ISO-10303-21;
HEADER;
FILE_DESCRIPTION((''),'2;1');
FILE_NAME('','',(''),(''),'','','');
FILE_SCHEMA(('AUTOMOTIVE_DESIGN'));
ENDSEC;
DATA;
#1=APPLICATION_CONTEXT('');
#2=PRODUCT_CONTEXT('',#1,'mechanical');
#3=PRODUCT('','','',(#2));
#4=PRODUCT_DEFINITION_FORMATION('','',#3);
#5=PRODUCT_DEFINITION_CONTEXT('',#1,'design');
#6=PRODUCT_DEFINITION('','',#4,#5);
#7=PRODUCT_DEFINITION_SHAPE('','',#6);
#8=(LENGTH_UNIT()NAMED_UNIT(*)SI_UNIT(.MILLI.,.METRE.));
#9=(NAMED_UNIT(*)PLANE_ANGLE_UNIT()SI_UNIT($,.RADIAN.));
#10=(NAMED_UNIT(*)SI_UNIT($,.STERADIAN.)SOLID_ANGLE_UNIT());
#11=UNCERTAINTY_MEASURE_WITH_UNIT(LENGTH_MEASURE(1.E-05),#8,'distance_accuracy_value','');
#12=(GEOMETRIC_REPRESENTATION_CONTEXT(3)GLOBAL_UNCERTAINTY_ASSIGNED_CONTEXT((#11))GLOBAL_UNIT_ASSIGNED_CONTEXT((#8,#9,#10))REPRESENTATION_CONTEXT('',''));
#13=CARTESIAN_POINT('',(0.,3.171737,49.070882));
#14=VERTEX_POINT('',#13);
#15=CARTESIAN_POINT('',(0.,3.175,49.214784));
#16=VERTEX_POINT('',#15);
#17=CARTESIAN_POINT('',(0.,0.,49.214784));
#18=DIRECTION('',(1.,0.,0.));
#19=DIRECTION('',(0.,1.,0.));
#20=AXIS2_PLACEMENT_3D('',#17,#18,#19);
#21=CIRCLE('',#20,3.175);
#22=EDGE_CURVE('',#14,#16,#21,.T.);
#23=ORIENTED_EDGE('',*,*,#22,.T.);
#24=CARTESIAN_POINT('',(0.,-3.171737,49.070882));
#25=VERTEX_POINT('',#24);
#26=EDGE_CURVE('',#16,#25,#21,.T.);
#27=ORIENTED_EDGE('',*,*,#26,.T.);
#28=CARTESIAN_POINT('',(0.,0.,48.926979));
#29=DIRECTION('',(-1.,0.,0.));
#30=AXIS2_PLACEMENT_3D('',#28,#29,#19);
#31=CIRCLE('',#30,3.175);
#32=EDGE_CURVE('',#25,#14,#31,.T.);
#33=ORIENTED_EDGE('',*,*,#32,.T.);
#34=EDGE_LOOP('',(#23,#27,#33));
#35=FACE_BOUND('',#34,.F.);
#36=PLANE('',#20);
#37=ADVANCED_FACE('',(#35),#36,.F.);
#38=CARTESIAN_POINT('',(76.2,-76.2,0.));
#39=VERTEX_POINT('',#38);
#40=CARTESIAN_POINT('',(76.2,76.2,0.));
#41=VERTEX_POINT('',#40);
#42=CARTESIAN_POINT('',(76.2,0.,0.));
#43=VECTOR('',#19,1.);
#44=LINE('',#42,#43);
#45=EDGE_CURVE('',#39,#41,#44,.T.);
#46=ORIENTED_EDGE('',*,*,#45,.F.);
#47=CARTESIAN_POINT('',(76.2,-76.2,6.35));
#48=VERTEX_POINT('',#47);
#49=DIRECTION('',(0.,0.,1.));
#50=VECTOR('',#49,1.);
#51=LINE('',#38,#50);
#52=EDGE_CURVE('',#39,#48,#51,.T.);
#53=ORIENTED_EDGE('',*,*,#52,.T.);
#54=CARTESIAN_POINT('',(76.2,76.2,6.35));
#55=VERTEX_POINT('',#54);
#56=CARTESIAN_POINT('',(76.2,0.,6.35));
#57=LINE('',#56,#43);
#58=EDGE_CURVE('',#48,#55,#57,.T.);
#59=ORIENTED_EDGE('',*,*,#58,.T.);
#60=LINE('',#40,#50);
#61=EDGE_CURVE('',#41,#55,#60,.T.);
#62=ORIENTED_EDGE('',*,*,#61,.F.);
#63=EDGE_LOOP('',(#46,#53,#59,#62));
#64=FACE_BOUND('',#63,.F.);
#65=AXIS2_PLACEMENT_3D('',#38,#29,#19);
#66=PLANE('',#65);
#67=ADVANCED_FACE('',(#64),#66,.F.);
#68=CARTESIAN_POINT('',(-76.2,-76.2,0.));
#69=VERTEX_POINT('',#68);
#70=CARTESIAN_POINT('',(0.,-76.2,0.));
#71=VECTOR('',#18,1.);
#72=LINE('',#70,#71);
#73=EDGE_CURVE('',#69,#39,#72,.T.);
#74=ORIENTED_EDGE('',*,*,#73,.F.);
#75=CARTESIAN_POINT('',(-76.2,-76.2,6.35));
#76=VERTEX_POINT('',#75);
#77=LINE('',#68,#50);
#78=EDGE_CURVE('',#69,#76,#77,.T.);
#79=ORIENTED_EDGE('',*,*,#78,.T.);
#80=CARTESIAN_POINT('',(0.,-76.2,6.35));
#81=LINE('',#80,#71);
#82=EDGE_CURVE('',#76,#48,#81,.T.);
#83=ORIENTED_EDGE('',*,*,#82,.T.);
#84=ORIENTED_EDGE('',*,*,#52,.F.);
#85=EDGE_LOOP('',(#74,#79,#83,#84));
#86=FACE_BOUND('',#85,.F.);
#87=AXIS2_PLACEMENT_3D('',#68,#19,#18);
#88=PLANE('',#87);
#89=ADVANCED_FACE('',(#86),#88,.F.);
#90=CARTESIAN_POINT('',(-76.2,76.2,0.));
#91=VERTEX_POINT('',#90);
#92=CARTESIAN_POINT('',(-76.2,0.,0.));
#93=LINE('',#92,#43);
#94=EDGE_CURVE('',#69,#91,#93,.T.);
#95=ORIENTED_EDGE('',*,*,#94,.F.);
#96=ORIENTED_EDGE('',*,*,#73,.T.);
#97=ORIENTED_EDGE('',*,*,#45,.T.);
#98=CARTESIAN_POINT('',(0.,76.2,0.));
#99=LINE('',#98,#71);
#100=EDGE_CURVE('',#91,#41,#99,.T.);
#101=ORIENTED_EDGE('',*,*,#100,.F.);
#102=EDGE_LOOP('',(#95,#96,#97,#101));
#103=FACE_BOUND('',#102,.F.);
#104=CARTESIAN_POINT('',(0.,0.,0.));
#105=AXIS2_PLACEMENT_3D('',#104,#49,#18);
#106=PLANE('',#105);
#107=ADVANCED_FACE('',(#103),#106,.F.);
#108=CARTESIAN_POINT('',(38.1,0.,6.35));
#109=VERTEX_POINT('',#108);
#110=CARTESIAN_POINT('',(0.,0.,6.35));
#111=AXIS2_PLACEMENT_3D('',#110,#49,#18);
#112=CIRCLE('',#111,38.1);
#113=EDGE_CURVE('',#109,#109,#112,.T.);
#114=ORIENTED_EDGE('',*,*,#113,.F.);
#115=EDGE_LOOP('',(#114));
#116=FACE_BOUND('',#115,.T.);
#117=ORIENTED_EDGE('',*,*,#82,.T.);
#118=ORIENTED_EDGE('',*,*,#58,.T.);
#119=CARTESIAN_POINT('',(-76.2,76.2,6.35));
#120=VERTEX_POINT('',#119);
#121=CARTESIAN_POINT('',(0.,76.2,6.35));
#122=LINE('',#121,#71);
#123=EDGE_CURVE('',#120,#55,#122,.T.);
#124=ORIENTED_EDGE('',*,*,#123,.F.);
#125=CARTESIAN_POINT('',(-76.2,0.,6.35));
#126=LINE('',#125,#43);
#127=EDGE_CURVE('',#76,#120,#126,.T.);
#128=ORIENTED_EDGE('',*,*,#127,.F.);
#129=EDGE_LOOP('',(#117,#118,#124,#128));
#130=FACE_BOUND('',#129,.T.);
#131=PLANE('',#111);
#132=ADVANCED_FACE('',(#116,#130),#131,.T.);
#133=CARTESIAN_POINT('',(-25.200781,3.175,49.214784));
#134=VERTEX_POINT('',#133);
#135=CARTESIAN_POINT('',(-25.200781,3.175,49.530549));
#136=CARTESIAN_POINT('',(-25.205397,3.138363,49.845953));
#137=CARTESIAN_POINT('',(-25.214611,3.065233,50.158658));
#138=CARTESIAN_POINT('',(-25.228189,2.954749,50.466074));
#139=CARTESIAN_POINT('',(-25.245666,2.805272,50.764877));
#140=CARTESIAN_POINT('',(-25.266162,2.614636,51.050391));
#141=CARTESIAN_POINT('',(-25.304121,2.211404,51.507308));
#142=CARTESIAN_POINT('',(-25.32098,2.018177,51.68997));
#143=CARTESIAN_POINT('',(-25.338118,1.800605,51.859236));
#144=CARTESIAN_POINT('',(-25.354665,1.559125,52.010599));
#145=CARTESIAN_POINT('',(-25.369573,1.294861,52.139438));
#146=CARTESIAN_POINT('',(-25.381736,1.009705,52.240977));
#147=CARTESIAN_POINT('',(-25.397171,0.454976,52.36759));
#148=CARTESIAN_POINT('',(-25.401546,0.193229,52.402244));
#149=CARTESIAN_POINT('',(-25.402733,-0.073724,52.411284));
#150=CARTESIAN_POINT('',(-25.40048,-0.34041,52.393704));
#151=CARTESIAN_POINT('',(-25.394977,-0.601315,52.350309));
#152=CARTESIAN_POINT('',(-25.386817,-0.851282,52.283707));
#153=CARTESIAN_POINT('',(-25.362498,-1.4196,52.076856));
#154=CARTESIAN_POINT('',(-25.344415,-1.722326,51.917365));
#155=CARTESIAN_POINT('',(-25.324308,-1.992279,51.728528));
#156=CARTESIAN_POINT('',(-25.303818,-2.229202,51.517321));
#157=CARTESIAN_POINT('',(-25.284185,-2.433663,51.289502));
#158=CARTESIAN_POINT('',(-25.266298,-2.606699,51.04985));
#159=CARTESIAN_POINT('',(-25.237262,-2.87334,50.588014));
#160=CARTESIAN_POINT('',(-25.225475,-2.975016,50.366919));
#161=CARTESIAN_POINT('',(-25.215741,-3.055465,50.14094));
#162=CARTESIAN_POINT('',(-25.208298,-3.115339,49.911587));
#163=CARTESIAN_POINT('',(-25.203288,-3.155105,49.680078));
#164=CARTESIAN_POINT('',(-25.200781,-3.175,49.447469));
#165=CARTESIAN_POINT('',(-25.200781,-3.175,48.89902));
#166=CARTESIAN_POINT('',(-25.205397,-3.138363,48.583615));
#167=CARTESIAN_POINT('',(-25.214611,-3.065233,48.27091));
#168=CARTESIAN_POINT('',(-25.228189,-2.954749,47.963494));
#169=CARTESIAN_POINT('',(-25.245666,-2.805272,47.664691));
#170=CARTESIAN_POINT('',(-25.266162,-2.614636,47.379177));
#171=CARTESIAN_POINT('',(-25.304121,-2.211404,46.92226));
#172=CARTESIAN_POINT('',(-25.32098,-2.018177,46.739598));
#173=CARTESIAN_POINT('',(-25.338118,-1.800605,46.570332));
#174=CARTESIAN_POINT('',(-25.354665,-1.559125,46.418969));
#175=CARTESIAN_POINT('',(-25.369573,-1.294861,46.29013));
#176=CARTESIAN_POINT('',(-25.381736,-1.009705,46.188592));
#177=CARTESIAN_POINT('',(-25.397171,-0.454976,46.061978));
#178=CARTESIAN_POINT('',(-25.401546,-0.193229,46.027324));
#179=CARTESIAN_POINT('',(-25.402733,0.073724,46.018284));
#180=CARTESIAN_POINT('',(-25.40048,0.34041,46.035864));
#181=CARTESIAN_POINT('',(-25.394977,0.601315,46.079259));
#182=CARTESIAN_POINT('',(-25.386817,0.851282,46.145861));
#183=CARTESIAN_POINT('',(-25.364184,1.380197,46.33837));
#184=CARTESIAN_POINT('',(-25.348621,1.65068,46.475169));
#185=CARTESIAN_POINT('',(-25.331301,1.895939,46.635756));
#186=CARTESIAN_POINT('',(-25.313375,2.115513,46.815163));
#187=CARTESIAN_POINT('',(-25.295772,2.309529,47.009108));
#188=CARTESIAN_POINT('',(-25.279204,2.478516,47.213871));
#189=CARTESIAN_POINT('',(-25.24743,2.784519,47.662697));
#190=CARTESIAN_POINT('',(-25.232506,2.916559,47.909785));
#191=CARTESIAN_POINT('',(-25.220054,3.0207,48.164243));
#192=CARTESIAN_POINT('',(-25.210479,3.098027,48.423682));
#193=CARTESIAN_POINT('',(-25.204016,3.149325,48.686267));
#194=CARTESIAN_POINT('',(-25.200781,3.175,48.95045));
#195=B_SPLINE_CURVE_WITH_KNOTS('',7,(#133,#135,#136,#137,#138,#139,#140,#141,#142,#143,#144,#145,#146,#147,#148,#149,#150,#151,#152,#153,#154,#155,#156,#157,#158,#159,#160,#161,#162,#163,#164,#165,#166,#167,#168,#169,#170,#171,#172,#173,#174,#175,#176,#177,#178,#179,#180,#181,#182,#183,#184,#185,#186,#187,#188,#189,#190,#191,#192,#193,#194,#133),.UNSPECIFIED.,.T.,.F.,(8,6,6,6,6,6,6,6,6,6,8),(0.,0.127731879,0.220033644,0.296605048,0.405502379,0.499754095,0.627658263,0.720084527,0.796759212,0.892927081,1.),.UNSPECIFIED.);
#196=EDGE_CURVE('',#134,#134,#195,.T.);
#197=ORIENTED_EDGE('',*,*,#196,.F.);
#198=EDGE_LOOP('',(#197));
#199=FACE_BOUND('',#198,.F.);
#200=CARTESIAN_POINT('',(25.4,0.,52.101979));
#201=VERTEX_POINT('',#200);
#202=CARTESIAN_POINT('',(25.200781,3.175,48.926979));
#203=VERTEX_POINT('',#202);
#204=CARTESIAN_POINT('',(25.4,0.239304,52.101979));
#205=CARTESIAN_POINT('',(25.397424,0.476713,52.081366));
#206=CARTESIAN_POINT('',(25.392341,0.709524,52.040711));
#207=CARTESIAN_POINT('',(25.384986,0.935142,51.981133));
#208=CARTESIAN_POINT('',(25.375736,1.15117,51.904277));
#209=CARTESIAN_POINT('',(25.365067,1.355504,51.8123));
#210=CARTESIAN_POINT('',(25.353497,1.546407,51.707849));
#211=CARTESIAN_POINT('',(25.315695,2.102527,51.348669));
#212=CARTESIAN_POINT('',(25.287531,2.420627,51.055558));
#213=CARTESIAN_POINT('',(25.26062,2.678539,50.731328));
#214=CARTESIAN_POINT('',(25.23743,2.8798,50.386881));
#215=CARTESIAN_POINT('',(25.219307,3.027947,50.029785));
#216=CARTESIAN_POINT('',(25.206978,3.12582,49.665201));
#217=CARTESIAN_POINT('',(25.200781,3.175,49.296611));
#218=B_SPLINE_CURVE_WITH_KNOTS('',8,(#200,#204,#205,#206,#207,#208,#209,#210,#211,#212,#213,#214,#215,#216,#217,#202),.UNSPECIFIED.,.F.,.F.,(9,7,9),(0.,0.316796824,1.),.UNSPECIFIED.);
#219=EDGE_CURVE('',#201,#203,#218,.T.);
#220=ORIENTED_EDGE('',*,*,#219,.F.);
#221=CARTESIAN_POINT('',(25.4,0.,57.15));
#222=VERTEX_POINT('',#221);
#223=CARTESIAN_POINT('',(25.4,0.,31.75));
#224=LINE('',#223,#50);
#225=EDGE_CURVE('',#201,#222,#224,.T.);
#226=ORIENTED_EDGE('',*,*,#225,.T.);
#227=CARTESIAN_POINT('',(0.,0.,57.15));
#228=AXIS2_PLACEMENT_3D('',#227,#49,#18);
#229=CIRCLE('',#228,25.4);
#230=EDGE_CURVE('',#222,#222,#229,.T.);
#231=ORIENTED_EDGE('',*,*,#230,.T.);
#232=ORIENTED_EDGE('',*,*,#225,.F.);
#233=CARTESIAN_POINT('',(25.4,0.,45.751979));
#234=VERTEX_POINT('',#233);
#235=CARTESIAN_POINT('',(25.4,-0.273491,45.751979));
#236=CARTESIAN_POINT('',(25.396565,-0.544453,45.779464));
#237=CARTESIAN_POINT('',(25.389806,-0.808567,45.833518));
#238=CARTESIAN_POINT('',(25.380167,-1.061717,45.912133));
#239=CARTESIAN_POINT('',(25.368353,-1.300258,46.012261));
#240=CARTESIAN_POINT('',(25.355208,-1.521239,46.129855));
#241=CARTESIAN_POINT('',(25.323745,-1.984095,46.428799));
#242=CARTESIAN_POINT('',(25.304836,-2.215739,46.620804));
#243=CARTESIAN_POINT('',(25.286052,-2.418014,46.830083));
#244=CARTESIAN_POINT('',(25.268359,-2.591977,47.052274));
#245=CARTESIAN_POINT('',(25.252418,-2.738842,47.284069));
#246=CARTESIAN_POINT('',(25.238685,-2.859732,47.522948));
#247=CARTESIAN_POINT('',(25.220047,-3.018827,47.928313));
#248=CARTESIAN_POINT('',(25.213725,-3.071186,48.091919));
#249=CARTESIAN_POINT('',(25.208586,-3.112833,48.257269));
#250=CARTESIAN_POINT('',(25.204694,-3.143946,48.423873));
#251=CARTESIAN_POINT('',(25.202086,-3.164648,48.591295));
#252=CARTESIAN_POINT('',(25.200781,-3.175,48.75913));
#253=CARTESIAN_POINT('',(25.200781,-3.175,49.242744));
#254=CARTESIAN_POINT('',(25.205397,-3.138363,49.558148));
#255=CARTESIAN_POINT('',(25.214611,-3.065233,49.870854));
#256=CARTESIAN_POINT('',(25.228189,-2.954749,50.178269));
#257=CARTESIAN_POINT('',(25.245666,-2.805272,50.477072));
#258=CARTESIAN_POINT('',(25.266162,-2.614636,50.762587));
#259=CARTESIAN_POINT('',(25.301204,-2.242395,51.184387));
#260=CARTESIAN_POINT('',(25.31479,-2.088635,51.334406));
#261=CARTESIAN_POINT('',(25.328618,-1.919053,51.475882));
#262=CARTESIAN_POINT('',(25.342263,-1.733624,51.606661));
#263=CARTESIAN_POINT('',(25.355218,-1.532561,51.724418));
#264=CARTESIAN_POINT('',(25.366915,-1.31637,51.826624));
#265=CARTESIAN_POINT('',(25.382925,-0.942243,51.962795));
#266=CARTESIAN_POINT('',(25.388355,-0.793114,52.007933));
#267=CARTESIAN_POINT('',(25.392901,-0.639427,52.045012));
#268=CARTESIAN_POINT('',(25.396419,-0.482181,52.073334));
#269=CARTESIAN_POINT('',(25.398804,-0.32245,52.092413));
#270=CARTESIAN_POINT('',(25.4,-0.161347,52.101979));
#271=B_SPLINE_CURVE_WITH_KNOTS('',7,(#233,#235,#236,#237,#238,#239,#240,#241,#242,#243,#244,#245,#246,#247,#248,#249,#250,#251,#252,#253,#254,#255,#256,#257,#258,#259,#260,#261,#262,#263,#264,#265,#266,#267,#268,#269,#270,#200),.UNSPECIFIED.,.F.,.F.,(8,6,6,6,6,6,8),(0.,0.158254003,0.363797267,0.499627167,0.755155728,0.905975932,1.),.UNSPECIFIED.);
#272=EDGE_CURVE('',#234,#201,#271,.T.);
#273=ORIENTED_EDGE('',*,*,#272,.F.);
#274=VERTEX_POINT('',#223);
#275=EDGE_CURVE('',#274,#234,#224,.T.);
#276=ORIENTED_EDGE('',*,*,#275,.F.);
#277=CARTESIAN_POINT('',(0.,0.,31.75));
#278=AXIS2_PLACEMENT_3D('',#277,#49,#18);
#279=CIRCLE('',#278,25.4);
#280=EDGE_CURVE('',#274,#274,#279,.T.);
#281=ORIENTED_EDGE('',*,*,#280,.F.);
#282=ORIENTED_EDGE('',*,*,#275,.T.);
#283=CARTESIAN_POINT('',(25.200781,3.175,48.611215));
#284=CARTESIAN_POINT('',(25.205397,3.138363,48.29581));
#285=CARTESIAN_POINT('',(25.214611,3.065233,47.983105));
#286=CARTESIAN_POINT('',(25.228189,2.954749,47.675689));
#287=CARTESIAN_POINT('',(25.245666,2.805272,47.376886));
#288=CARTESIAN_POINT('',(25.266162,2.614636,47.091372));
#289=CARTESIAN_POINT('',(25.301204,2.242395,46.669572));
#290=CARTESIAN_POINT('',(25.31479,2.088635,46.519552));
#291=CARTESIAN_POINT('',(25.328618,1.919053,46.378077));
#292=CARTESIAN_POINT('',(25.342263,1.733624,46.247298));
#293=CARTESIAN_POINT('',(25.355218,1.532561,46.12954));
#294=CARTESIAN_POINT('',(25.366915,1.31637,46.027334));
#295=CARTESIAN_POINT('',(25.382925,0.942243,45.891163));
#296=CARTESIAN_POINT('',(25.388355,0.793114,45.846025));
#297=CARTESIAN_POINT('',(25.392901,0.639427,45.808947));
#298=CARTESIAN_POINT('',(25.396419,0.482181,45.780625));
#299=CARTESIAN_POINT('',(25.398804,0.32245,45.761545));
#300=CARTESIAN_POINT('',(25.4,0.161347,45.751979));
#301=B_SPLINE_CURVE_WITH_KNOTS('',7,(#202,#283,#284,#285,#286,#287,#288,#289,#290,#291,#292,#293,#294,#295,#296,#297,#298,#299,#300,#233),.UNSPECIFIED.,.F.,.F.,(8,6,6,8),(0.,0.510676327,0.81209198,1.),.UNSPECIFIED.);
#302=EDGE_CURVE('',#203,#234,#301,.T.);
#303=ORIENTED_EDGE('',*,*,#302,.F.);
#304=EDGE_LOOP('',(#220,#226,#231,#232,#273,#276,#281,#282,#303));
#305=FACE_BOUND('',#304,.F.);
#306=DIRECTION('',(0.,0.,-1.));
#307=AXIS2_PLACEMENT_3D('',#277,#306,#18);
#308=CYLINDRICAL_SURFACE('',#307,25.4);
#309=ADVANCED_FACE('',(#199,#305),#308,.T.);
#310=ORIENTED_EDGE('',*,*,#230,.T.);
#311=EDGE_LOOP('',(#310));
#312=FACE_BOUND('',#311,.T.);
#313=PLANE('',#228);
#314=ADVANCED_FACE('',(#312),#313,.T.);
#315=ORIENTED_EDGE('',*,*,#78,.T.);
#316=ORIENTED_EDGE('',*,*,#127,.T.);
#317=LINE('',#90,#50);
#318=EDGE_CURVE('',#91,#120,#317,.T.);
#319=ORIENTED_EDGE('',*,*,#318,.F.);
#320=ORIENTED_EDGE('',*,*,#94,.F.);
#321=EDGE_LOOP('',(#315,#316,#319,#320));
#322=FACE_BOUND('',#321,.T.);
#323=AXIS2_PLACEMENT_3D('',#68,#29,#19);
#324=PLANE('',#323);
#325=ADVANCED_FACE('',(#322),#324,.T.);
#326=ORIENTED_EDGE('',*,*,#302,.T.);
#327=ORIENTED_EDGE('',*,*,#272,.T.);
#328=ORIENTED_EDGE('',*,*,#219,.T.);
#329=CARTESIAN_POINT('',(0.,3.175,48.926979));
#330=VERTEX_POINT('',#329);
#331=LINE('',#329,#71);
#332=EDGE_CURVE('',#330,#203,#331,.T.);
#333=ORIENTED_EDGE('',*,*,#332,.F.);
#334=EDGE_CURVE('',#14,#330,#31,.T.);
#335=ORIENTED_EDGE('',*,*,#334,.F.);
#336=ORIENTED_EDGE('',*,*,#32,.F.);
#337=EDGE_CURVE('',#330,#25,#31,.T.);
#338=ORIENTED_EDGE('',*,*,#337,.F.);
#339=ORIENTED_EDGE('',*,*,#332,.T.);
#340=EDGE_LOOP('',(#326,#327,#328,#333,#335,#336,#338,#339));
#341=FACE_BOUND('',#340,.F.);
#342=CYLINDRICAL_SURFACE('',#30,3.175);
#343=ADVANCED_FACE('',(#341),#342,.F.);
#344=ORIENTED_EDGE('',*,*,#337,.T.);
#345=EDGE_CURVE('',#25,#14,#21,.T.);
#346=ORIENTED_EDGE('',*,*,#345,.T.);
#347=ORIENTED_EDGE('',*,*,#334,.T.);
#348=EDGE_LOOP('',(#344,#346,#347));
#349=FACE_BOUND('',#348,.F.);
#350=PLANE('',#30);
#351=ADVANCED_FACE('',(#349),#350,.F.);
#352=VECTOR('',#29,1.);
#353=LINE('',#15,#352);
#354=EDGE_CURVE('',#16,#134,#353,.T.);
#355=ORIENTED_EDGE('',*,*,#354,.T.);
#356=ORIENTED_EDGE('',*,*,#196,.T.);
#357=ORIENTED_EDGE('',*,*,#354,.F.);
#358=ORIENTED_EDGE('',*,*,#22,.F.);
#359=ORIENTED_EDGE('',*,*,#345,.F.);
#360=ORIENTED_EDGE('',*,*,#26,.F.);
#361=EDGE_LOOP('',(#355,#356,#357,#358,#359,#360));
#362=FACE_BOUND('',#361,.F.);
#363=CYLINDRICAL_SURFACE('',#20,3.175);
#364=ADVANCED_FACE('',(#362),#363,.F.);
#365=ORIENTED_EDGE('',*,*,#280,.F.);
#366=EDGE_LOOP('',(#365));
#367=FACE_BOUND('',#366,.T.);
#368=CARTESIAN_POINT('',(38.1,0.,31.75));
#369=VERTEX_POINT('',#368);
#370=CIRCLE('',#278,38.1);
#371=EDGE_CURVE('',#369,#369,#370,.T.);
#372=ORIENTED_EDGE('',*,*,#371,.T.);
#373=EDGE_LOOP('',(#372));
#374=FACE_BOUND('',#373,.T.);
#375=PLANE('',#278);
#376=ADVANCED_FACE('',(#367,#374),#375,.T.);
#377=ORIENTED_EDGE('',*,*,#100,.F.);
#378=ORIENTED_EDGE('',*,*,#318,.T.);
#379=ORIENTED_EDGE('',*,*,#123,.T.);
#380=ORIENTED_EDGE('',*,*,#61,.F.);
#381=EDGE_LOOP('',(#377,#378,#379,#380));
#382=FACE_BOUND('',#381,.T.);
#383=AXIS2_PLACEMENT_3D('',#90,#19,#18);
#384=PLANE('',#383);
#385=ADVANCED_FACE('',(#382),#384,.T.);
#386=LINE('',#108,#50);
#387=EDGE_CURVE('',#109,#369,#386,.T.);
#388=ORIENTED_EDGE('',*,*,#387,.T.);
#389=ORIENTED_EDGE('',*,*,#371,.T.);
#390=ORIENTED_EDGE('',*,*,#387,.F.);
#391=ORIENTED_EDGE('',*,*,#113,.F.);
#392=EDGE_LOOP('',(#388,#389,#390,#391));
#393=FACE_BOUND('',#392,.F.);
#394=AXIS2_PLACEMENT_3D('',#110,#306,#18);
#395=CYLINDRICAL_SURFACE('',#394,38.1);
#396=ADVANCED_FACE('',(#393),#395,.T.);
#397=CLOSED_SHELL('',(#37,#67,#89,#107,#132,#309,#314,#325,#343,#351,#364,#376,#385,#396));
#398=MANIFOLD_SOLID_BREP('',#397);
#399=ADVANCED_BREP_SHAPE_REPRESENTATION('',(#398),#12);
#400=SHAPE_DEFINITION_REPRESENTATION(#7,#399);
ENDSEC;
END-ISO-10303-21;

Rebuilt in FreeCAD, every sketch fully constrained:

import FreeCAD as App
import Part
import Sketcher

V = App.Vector
Q = App.Units.Quantity


def add_polygon(sketch, points):
    """Adds a closed chain of lines whose ends are joined by coincident constraints."""
    first, n = sketch.GeometryCount, len(points)
    for a, b in zip(points, points[1:] + points[:1]):
        sketch.addGeometry(Part.LineSegment(App.Vector(*a, 0), App.Vector(*b, 0)), False)
    for i in range(n):
        sketch.addConstraint(Sketcher.Constraint("Coincident", first + i, 2, first + (i + 1) % n, 1))

doc = App.newDocument("Part")
body = doc.addObject("PartDesign::Body", "Body")

# Sketch on XY plane
sketch1 = doc.addObject("Sketcher::SketchObject", "Sketch")
body.addObject(sketch1)
sketch1.AttachmentSupport = (doc.XY_Plane, [""])
sketch1.MapMode = "FlatFace"
add_polygon(sketch1, [(-76.2, 76.2), (-76.2, -76.2), (76.2, -76.2), (76.2, 76.2)])  # lines 0-3
sketch1.addConstraint(Sketcher.Constraint("Vertical", 0))
sketch1.addConstraint(Sketcher.Constraint("Horizontal", 1))
sketch1.addConstraint(Sketcher.Constraint("Vertical", 2))
sketch1.addConstraint(Sketcher.Constraint("Horizontal", 3))
sketch1.addConstraint(Sketcher.Constraint("Symmetric", 0, 2, 2, 2, -1, 1))
sketch1.addConstraint(Sketcher.Constraint("Equal", 3, 0))
sketch1.addConstraint(Sketcher.Constraint("DistanceX", 1, 1, 1, 2, Q("6 in")))
pad1 = doc.addObject("PartDesign::Pad", "Pad")
body.addObject(pad1)
pad1.Profile = sketch1
pad1.Length = Q("0.25 in")

# Sketch on XY plane
sketch2 = doc.addObject("Sketcher::SketchObject", "Sketch001")
body.addObject(sketch2)
sketch2.AttachmentSupport = (doc.XY_Plane, [""])
sketch2.MapMode = "FlatFace"
sketch2.AttachmentOffset = App.Placement(V(0, 0, 0.25 * 25.4), App.Rotation())
sketch2.addGeometry(Part.Circle(V(0, 0, 0), V(0, 0, 1), 38.1), False)
sketch2.addConstraint(Sketcher.Constraint("Coincident", 0, 3, -1, 1))
sketch2.addConstraint(Sketcher.Constraint("Diameter", 0, Q("3 in")))
pad2 = doc.addObject("PartDesign::Pad", "Pad001")
body.addObject(pad2)
pad2.Profile = sketch2
pad2.Length = Q("1 in")

# Sketch on XY plane
sketch3 = doc.addObject("Sketcher::SketchObject", "Sketch002")
body.addObject(sketch3)
sketch3.AttachmentSupport = (doc.XY_Plane, [""])
sketch3.MapMode = "FlatFace"
sketch3.AttachmentOffset = App.Placement(V(0, 0, 1.25 * 25.4), App.Rotation())
sketch3.addGeometry(Part.Circle(V(0, 0, 0), V(0, 0, 1), 25.4), False)
sketch3.addConstraint(Sketcher.Constraint("Coincident", 0, 3, -1, 1))
sketch3.addConstraint(Sketcher.Constraint("Diameter", 0, Q("2 in")))
pad3 = doc.addObject("PartDesign::Pad", "Pad002")
body.addObject(pad3)
pad3.Profile = sketch3
pad3.Length = Q("1 in")

# Sketch on YZ plane
sketch4 = doc.addObject("Sketcher::SketchObject", "Sketch003")
body.addObject(sketch4)
sketch4.AttachmentSupport = (doc.YZ_Plane, [""])
sketch4.MapMode = "FlatFace"
sketch4.addGeometry(Part.Circle(V(0, 48.926979, 0), V(0, 0, 1), 3.175), False)
sketch4.addConstraint(Sketcher.Constraint("PointOnObject", 0, 3, -2))
sketch4.addConstraint(Sketcher.Constraint("Diameter", 0, Q("0.25 in")))
sketch4.addConstraint(Sketcher.Constraint("DistanceY", -1, 1, 0, 3, Q("48.926979 mm")))
pocket1 = doc.addObject("PartDesign::Pocket", "Pocket")
body.addObject(pocket1)
pocket1.Profile = sketch4
pocket1.Type = "ThroughAll"
pocket1.Reversed = True

# Sketch on YZ plane
sketch5 = doc.addObject("Sketcher::SketchObject", "Sketch004")
body.addObject(sketch5)
sketch5.AttachmentSupport = (doc.YZ_Plane, [""])
sketch5.MapMode = "FlatFace"
sketch5.addGeometry(Part.Circle(V(0, 49.214784, 0), V(0, 0, 1), 3.175), False)
sketch5.addConstraint(Sketcher.Constraint("PointOnObject", 0, 3, -2))
sketch5.addConstraint(Sketcher.Constraint("Diameter", 0, Q("0.25 in")))
sketch5.addConstraint(Sketcher.Constraint("DistanceY", -1, 1, 0, 3, Q("49.214784 mm")))
pocket2 = doc.addObject("PartDesign::Pocket", "Pocket001")
body.addObject(pocket2)
pocket2.Profile = sketch5
pocket2.Type = "ThroughAll"

doc.recompute()
